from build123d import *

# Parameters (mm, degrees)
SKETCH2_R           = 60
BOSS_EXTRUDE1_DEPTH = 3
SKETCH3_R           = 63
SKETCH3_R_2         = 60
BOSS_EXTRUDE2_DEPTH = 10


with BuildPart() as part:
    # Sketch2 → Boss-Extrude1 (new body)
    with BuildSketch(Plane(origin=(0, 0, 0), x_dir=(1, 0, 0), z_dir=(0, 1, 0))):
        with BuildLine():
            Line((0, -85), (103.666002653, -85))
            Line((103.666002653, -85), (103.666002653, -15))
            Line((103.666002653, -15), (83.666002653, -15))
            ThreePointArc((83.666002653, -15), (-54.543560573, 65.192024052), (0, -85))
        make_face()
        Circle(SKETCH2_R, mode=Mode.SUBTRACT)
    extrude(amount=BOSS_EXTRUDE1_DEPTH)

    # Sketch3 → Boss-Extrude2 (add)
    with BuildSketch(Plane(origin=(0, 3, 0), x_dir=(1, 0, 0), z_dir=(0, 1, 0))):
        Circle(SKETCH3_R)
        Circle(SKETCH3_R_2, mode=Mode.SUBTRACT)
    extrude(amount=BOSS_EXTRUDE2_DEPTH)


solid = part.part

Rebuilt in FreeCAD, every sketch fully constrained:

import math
import FreeCAD as App
import Part
import Sketcher

V = App.Vector
Q = App.Units.Quantity

doc = App.newDocument("Part")
body = doc.addObject("PartDesign::Body", "Body")

# Sketch on XZ plane
sketch1 = body.newObject("Sketcher::SketchObject", "Sketch")
sketch1.AttachmentSupport = (doc.getObject("XZ_Plane"), [""])
sketch1.MapMode = "FlatFace"
sketch1.addGeometry([
    Part.LineSegment(V(0, 85, 0), V(104, 85, 0)),  # 0
    Part.LineSegment(V(104, 85, 0), V(104, 15, 0)),  # 1
    Part.LineSegment(V(104, 15, 0), V(84, 15, 0)),  # 2
    Part.ArcOfCircle(Part.Circle(V(0, 0, 0), V(0, 0, 1), 85), math.radians(90), math.radians(370)),  # 3
    Part.Circle(V(0, 0, 0), V(0, 0, 1), 60),  # 4
], False)
sketch1.addConstraint([
    Sketcher.Constraint("Coincident", 0, 2, 1, 1),
    Sketcher.Constraint("Coincident", 1, 2, 2, 1),
    Sketcher.Constraint("Coincident", 2, 2, 3, 2),
    Sketcher.Constraint("Tangent", 3, 1, 0, 1),
    Sketcher.Constraint("Horizontal", 0),
    Sketcher.Constraint("Vertical", 1),
    Sketcher.Constraint("Horizontal", 2),
    Sketcher.Constraint("Coincident", 3, 3, -1, 1),
    Sketcher.Constraint("Coincident", 4, 3, -1, 1),
    Sketcher.Constraint("Diameter", 4, Q("120 mm")),
    Sketcher.Constraint("Radius", 3, Q("85 mm")),
    Sketcher.Constraint("DistanceX", 2, 2, 2, 1, Q("20 mm")),
    Sketcher.Constraint("DistanceY", 1, 2, 1, 1, Q("70 mm")),
])
pad1 = body.newObject("PartDesign::Pad", "Pad")
pad1.Profile = sketch1
pad1.Length = 3
pad1.Reversed = True

# Sketch on XZ plane
sketch2 = body.newObject("Sketcher::SketchObject", "Sketch001")
sketch2.AttachmentSupport = (doc.getObject("XZ_Plane"), [""])
sketch2.MapMode = "FlatFace"
sketch2.AttachmentOffset = App.Placement(V(0, 0, -3), App.Rotation())
sketch2.addGeometry([
    Part.Circle(V(0, 0, 0), V(0, 0, 1), 63),
    Part.Circle(V(0, 0, 0), V(0, 0, 1), 60),
], False)
sketch2.addConstraint([
    Sketcher.Constraint("Coincident", 0, 3, -1, 1),
    Sketcher.Constraint("Coincident", 1, 3, -1, 1),
    Sketcher.Constraint("Diameter", 0, Q("126 mm")),
    Sketcher.Constraint("Diameter", 1, Q("120 mm")),
])
pad2 = body.newObject("PartDesign::Pad", "Pad001")
pad2.Profile = sketch2
pad2.Length = 10
pad2.Reversed = True

doc.recompute()
